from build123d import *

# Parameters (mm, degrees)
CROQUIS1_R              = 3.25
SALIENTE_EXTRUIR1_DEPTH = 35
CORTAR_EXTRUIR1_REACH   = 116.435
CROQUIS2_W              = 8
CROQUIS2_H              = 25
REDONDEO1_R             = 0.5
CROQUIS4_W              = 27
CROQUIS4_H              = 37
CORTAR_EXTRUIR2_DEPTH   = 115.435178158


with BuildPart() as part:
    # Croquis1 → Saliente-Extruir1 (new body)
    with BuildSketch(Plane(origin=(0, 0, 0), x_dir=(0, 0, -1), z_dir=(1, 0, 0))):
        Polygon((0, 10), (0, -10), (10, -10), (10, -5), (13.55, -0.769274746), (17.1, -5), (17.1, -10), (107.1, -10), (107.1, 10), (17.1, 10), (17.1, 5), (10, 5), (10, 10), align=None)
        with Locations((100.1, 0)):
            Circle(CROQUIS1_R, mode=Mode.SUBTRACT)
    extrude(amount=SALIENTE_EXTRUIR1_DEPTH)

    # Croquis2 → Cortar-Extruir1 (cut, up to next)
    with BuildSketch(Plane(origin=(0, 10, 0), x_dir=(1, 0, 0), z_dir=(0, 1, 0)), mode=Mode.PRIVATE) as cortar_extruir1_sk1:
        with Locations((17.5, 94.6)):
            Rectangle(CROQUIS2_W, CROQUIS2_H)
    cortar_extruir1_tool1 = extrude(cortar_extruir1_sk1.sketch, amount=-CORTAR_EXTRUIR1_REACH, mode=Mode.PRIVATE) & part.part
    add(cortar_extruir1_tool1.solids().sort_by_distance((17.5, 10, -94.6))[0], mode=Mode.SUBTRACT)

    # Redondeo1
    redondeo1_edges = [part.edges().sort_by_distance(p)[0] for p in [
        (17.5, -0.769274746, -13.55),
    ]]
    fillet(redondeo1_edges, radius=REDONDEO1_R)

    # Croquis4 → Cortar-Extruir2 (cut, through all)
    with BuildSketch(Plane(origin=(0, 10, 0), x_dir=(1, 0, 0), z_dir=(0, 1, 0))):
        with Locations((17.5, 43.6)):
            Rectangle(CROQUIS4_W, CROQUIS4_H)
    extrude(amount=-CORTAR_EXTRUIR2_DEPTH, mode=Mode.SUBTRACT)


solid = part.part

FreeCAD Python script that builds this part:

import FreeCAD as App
import Part
import Sketcher
Q = App.Units.Quantity


def edges_at(feature, points):
    """Names of the edges that pass closest to the given points."""
    edges = feature.Shape.Edges
    near = lambda p: min(range(len(edges)), key=lambda i: edges[i].distToShape(Part.Vertex(*p))[0])
    return sorted({f"Edge{near(p) + 1}" for p in points})

doc = App.newDocument("Part")
body = doc.addObject("PartDesign::Body", "Body")

# Sketch on YZ plane
sketch1 = doc.addObject("Sketcher::SketchObject", "Sketch")
body.addObject(sketch1)
sketch1.AttachmentSupport = (doc.YZ_Plane, [""])
sketch1.MapMode = "FlatFace"
sketch1.addGeometry([
    Part.LineSegment(App.Vector(10, 0, 0), App.Vector(-10, 0, 0)),  # 0
    Part.LineSegment(App.Vector(-10, 0, 0), App.Vector(-10, -10, 0)),  # 1
    Part.LineSegment(App.Vector(-10, -10, 0), App.Vector(-5, -10, 0)),  # 2
    Part.LineSegment(App.Vector(-5, -10, 0), App.Vector(-0.769275, -13.55, 0)),  # 3
    Part.LineSegment(App.Vector(-0.769275, -13.55, 0), App.Vector(-5, -17.1, 0)),  # 4
    Part.LineSegment(App.Vector(-5, -17.1, 0), App.Vector(-10, -17.1, 0)),  # 5
    Part.LineSegment(App.Vector(-10, -17.1, 0), App.Vector(-10, -107.1, 0)),  # 6
    Part.LineSegment(App.Vector(-10, -107.1, 0), App.Vector(10, -107.1, 0)),  # 7
    Part.LineSegment(App.Vector(10, -107.1, 0), App.Vector(10, -17.1, 0)),  # 8
    Part.LineSegment(App.Vector(10, -17.1, 0), App.Vector(5, -17.1, 0)),  # 9
    Part.LineSegment(App.Vector(5, -17.1, 0), App.Vector(5, -10, 0)),  # 10
    Part.LineSegment(App.Vector(5, -10, 0), App.Vector(10, -10, 0)),  # 11
    Part.LineSegment(App.Vector(10, -10, 0), App.Vector(10, 0, 0)),  # 12
    Part.Circle(App.Vector(0, -100.1, 0), App.Vector(0, 0, 1), 3.25),  # 13
], False)
sketch1.addConstraint([
    Sketcher.Constraint("Coincident", 0, 2, 1, 1),
    Sketcher.Constraint("Coincident", 1, 2, 2, 1),
    Sketcher.Constraint("Coincident", 2, 2, 3, 1),
    Sketcher.Constraint("Coincident", 3, 2, 4, 1),
    Sketcher.Constraint("Coincident", 4, 2, 5, 1),
    Sketcher.Constraint("Coincident", 5, 2, 6, 1),
    Sketcher.Constraint("Coincident", 6, 2, 7, 1),
    Sketcher.Constraint("Coincident", 7, 2, 8, 1),
    Sketcher.Constraint("Coincident", 8, 2, 9, 1),
    Sketcher.Constraint("Coincident", 9, 2, 10, 1),
    Sketcher.Constraint("Coincident", 10, 2, 11, 1),
    Sketcher.Constraint("Coincident", 11, 2, 12, 1),
    Sketcher.Constraint("Coincident", 12, 2, 0, 1),
    Sketcher.Constraint("Horizontal", 0),
    Sketcher.Constraint("Vertical", 1),
    Sketcher.Constraint("Horizontal", 2),
    Sketcher.Constraint("Horizontal", 5),
    Sketcher.Constraint("Vertical", 6),
    Sketcher.Constraint("Horizontal", 7),
    Sketcher.Constraint("Vertical", 8),
    Sketcher.Constraint("Horizontal", 9),
    Sketcher.Constraint("Vertical", 10),
    Sketcher.Constraint("Horizontal", 11),
    Sketcher.Constraint("Vertical", 12),
    Sketcher.Constraint("Symmetric", 0, 2, 12, 2, -1, 1),
    Sketcher.Constraint("Symmetric", 5, 2, 8, 2, -2),
    Sketcher.Constraint("Symmetric", 2, 2, 10, 2, -2),
    Sketcher.Constraint("PointOnObject", 13, 3, -2),
    Sketcher.Constraint("Vertical", 2, 2, 4, 2),
    Sketcher.Constraint("Vertical", 1, 2, 5, 2),
    Sketcher.Constraint("Equal", 3, 4),
    Sketcher.Constraint("Diameter", 13, Q("6.5 mm")),
    Sketcher.Constraint("DistanceX", 0, 2, 0, 1, Q("20 mm")),
    Sketcher.Constraint("DistanceX", 2, 1, 2, 2, Q("5 mm")),
    Sketcher.Constraint("DistanceY", 1, 2, 1, 1, Q("10 mm")),
    Sketcher.Constraint("DistanceY", 6, 2, 6, 1, Q("90 mm")),
    Sketcher.Constraint("Angle", 3, Q("-40 deg")),
    Sketcher.Constraint("DistanceY", 10, 1, 10, 2, Q("7.1 mm")),
    Sketcher.Constraint("DistanceY", 13, 3, 4, 2, Q("83 mm")),
])
pad1 = doc.addObject("PartDesign::Pad", "Pad")
body.addObject(pad1)
pad1.Profile = sketch1
pad1.Length = 35

# Sketch on XZ plane
sketch2 = doc.addObject("Sketcher::SketchObject", "Sketch001")
body.addObject(sketch2)
sketch2.AttachmentSupport = (doc.XZ_Plane, [""])
sketch2.MapMode = "FlatFace"
sketch2.AttachmentOffset = App.Placement(App.Vector(0, 0, -10), App.Rotation())
sketch2.addGeometry([
    Part.LineSegment(App.Vector(13.5, -107.1, 0), App.Vector(13.5, -82.1, 0)),
    Part.LineSegment(App.Vector(13.5, -82.1, 0), App.Vector(21.5, -82.1, 0)),
    Part.LineSegment(App.Vector(21.5, -82.1, 0), App.Vector(21.5, -107.1, 0)),
    Part.LineSegment(App.Vector(21.5, -107.1, 0), App.Vector(13.5, -107.1, 0)),
], False)
sketch2.addConstraint([
    Sketcher.Constraint("Coincident", 0, 2, 1, 1),
    Sketcher.Constraint("Coincident", 1, 2, 2, 1),
    Sketcher.Constraint("Coincident", 2, 2, 3, 1),
    Sketcher.Constraint("Coincident", 3, 2, 0, 1),
    Sketcher.Constraint("Vertical", 0),
    Sketcher.Constraint("Horizontal", 1),
    Sketcher.Constraint("Vertical", 2),
    Sketcher.Constraint("Horizontal", 3),
    Sketcher.Constraint("DistanceX", 1, 1, 1, 2, Q("8 mm")),
    Sketcher.Constraint("DistanceY", 0, 1, 0, 2, Q("25 mm")),
    Sketcher.Constraint("DistanceX", -1, 1, 0, 2, Q("13.5 mm")),
    Sketcher.Constraint("DistanceY", 0, 2, -1, 1, Q("82.1 mm")),
])
pocket1 = doc.addObject("PartDesign::Pocket", "Pocket")
body.addObject(pocket1)
pocket1.Profile = sketch2
pocket1.Type = "UpToFirst"
pocket1.Reversed = True
doc.recompute()

fillet = doc.addObject("PartDesign::Fillet", "Fillet")
body.addObject(fillet)
fillet.Base = (pocket1, edges_at(pocket1, [(17.5, -0.769, -13.55)]))
fillet.Radius = 0.5

# Sketch on XZ plane
sketch3 = doc.addObject("Sketcher::SketchObject", "Sketch002")
body.addObject(sketch3)
sketch3.AttachmentSupport = (doc.XZ_Plane, [""])
sketch3.MapMode = "FlatFace"
sketch3.AttachmentOffset = App.Placement(App.Vector(0, 0, -10), App.Rotation())
sketch3.addGeometry([
    Part.LineSegment(App.Vector(4, -62.1, 0), App.Vector(4, -25.1, 0)),
    Part.LineSegment(App.Vector(4, -25.1, 0), App.Vector(31, -25.1, 0)),
    Part.LineSegment(App.Vector(31, -25.1, 0), App.Vector(31, -62.1, 0)),
    Part.LineSegment(App.Vector(31, -62.1, 0), App.Vector(4, -62.1, 0)),
], False)
sketch3.addConstraint([
    Sketcher.Constraint("Coincident", 0, 2, 1, 1),
    Sketcher.Constraint("Coincident", 1, 2, 2, 1),
    Sketcher.Constraint("Coincident", 2, 2, 3, 1),
    Sketcher.Constraint("Coincident", 3, 2, 0, 1),
    Sketcher.Constraint("Vertical", 0),
    Sketcher.Constraint("Horizontal", 1),
    Sketcher.Constraint("Vertical", 2),
    Sketcher.Constraint("Horizontal", 3),
    Sketcher.Constraint("DistanceX", 1, 1, 1, 2, Q("27 mm")),
    Sketcher.Constraint("DistanceY", 0, 1, 0, 2, Q("37 mm")),
    Sketcher.Constraint("DistanceX", -1, 1, 0, 2, Q("4 mm")),
    Sketcher.Constraint("DistanceY", 0, 2, -1, 1, Q("25.1 mm")),
])
pocket2 = doc.addObject("PartDesign::Pocket", "Pocket001")
body.addObject(pocket2)
pocket2.Profile = sketch3
pocket2.Type = "ThroughAll"
pocket2.Reversed = True

doc.recompute()
